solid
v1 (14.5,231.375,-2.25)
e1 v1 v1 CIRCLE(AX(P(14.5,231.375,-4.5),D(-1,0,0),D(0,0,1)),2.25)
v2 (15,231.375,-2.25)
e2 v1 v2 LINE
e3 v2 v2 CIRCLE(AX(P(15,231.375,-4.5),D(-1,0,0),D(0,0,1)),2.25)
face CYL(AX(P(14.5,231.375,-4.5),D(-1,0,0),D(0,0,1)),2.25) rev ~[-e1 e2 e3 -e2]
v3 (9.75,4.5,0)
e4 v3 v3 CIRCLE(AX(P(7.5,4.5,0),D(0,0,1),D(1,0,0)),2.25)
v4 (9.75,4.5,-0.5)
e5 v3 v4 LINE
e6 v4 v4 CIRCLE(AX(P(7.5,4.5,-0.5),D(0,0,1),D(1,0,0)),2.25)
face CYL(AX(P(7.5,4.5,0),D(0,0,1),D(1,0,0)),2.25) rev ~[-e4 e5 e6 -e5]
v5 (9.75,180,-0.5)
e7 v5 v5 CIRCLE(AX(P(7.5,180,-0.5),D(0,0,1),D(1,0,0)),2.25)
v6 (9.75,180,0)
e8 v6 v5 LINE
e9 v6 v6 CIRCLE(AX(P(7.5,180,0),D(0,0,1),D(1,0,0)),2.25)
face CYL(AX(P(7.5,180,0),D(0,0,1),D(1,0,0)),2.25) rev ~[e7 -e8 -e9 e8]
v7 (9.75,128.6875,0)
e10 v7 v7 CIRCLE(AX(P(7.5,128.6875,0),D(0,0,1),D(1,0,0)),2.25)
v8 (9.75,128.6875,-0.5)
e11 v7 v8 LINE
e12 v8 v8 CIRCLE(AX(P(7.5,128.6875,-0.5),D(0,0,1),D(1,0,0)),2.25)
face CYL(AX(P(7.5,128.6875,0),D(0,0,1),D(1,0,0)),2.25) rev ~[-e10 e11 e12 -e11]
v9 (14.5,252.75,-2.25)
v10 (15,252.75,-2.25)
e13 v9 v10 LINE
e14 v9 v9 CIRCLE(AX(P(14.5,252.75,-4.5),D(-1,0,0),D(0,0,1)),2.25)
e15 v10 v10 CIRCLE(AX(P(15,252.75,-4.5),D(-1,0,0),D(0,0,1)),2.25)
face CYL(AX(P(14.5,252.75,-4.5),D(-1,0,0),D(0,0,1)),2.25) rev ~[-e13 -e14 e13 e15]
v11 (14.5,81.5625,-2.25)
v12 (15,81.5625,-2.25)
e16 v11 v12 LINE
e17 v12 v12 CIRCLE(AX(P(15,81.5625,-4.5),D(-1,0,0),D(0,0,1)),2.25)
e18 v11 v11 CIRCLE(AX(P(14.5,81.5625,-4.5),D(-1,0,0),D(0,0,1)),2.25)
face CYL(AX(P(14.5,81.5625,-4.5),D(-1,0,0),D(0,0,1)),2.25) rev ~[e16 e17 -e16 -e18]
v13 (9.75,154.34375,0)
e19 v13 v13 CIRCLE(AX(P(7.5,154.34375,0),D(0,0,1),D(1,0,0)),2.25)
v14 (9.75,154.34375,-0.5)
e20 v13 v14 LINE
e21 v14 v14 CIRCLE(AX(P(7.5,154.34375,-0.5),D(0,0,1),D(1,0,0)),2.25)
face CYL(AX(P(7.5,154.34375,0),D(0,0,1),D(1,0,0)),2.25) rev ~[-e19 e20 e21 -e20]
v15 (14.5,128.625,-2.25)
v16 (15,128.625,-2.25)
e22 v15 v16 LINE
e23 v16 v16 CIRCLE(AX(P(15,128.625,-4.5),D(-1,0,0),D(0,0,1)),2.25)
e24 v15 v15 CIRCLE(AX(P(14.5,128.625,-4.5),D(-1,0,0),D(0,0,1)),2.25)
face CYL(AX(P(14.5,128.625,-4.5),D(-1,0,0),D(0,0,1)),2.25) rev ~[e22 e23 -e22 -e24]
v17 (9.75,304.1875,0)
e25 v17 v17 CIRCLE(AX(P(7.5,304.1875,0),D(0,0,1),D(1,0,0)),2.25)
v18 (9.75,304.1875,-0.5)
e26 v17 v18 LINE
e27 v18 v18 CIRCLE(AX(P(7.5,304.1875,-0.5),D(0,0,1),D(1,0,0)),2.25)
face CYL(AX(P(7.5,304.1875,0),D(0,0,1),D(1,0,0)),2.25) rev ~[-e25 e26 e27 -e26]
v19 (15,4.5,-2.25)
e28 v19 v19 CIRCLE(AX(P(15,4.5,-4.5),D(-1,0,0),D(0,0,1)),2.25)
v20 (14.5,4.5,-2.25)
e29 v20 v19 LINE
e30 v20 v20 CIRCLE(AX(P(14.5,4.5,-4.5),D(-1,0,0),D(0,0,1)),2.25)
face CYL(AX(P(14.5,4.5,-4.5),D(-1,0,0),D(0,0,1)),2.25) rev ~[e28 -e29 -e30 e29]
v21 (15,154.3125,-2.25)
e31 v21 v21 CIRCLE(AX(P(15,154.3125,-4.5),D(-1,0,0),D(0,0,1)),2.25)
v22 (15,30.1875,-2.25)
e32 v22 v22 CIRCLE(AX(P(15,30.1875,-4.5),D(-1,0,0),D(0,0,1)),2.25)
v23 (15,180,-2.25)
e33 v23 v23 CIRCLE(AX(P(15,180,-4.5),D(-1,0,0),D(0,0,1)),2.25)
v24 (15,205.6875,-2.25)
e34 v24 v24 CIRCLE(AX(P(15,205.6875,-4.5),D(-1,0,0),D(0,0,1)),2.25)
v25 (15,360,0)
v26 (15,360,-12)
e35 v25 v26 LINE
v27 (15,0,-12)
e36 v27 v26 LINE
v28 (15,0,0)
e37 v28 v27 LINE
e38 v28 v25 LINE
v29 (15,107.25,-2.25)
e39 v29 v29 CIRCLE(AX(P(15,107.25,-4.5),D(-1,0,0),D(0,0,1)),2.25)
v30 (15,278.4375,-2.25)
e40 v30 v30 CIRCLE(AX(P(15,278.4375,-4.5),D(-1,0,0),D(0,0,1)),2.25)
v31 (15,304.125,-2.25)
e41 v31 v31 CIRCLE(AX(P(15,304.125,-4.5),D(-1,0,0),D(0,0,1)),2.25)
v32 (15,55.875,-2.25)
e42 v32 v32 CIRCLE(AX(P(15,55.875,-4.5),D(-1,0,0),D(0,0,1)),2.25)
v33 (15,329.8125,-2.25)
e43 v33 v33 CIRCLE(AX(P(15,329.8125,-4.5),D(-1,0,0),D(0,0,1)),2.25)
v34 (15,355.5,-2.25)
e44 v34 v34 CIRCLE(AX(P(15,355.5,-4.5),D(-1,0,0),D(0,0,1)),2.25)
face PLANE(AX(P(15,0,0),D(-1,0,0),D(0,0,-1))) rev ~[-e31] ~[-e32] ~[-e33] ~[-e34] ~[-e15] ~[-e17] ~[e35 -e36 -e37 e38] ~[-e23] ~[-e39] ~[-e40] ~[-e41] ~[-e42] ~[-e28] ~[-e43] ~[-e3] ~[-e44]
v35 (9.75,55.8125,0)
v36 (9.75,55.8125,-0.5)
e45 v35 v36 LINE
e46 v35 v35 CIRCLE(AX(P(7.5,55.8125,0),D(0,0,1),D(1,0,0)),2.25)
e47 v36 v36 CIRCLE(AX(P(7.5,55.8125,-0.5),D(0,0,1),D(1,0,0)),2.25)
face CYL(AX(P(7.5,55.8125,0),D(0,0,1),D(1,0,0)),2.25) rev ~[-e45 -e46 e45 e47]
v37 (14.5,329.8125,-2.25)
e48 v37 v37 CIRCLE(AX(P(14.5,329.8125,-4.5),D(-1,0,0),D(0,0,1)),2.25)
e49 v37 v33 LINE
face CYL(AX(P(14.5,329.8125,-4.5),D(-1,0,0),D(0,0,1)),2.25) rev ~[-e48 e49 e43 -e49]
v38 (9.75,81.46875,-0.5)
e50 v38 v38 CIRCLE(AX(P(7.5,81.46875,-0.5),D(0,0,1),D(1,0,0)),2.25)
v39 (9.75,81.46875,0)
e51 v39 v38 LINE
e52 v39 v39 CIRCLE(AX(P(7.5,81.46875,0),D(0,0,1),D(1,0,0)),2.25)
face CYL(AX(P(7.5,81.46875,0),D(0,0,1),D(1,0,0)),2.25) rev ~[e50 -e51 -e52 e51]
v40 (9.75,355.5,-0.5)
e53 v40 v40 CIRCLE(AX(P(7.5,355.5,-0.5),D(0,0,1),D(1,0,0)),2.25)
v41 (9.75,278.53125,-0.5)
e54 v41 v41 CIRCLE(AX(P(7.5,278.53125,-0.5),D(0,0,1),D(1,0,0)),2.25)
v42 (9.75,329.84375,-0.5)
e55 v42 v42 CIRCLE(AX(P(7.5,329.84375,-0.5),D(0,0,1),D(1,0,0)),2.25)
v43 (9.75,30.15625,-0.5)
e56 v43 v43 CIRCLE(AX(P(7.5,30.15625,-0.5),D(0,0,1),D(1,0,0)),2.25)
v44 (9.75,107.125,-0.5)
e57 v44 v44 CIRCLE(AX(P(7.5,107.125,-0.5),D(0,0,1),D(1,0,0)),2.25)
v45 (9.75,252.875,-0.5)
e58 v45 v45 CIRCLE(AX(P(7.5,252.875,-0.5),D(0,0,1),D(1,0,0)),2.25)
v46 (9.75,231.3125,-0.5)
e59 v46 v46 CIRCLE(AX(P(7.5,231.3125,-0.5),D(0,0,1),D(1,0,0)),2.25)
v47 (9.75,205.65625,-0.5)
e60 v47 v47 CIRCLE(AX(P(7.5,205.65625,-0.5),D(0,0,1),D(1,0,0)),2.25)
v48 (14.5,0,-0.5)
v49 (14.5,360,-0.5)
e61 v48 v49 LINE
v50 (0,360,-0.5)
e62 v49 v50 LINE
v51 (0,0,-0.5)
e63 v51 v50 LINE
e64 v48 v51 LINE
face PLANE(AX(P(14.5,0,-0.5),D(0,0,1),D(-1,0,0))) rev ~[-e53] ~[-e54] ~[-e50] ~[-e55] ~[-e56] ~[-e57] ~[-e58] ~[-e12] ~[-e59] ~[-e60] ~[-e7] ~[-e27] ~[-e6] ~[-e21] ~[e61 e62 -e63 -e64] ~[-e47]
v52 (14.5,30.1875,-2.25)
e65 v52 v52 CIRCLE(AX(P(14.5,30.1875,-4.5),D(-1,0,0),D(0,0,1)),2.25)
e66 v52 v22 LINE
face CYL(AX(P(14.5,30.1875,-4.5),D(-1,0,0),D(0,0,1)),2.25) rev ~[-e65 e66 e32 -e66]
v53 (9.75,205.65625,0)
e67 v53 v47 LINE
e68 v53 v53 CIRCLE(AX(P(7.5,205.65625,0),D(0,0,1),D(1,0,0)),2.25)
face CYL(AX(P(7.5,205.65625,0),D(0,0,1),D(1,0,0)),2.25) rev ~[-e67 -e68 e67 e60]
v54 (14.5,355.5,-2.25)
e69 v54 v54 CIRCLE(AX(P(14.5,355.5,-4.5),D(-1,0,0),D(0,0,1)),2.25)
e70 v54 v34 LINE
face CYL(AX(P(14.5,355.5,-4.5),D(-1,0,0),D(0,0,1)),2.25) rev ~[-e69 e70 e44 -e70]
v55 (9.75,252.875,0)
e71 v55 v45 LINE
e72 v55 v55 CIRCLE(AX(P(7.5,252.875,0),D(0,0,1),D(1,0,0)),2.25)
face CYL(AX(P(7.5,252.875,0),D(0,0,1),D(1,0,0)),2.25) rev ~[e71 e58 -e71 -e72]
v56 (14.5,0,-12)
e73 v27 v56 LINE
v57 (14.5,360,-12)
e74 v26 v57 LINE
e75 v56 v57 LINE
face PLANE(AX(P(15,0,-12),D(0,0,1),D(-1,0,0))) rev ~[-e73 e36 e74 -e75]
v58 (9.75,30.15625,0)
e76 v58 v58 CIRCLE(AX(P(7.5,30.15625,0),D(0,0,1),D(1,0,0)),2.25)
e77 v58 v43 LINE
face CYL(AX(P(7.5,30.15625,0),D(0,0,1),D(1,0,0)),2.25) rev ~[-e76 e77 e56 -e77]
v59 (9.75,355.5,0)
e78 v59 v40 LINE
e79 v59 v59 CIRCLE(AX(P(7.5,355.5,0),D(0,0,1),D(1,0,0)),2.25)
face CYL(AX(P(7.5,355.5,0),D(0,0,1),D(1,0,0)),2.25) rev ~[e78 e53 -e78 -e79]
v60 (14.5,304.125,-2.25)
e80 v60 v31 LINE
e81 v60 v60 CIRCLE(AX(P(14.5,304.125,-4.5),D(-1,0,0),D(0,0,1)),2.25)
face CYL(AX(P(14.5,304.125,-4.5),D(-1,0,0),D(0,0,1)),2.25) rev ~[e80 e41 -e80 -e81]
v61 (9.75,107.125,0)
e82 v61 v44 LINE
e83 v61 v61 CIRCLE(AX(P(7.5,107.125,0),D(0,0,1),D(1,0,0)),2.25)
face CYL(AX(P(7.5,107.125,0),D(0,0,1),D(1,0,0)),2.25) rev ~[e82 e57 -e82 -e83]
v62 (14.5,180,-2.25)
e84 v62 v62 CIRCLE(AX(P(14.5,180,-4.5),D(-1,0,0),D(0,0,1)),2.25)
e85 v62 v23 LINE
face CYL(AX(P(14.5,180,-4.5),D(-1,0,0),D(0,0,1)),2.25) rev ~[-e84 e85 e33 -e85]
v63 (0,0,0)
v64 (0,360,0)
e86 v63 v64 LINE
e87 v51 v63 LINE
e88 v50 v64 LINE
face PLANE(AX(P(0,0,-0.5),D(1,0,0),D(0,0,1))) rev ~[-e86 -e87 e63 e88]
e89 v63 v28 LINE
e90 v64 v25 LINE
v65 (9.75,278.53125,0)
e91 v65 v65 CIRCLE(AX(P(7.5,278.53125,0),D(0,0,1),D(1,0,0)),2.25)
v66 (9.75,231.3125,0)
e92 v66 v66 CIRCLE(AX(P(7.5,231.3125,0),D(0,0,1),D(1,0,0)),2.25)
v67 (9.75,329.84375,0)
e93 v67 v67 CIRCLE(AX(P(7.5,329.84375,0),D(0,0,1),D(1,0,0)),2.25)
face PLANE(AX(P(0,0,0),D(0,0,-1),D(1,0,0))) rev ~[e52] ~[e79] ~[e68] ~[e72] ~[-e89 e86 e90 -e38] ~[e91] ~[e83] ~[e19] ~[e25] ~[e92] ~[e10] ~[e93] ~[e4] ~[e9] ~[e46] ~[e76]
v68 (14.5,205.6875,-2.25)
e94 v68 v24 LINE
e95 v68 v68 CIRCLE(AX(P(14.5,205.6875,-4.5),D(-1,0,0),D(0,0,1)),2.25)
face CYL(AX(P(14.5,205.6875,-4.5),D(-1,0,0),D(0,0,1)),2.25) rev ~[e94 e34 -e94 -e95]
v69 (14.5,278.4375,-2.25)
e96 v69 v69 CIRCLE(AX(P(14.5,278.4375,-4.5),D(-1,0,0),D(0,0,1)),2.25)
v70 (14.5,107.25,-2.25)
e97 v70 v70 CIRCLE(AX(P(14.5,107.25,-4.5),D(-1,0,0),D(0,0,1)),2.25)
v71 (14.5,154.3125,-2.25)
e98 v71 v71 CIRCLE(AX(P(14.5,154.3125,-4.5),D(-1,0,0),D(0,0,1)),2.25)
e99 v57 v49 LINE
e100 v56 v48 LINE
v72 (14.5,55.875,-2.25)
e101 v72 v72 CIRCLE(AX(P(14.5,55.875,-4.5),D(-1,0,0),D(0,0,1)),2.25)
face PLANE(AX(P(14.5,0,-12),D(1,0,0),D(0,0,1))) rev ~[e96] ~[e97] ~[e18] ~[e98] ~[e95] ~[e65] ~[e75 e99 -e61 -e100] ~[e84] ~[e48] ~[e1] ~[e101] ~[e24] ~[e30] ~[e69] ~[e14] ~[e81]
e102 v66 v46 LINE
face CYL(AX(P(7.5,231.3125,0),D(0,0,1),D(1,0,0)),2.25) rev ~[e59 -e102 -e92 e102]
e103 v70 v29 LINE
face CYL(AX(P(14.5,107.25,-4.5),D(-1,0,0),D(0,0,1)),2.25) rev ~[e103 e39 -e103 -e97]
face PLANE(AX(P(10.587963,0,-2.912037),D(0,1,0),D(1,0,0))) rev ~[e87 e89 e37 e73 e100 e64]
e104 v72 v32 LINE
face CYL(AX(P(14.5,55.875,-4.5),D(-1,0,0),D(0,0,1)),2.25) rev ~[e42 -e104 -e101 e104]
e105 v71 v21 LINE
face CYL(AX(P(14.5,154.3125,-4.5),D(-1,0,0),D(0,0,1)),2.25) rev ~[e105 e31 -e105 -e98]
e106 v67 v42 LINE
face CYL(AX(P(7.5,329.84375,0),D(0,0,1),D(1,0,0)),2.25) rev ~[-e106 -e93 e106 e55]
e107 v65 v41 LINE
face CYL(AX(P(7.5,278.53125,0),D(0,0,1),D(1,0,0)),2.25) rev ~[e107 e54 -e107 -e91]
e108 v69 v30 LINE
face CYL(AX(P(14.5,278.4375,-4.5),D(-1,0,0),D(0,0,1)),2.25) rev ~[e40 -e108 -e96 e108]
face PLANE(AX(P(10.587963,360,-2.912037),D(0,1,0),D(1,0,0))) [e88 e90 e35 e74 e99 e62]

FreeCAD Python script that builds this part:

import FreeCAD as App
import Part
import Sketcher
from FreeCAD import Vector


def add_polygon(sketch, points):
    """Adds a closed chain of lines whose ends are joined by coincident constraints."""
    first, n = sketch.GeometryCount, len(points)
    for a, b in zip(points, points[1:] + points[:1]):
        sketch.addGeometry(Part.LineSegment(App.Vector(*a, 0), App.Vector(*b, 0)), False)
    for i in range(n):
        sketch.addConstraint(Sketcher.Constraint("Coincident", first + i, 2, first + (i + 1) % n, 1))

doc = App.newDocument("Part")
body = doc.addObject("PartDesign::Body", "Body")

sketch1 = doc.addObject("Sketcher::SketchObject", "Sketch")
body.addObject(sketch1)
sketch1.AttachmentSupport = (doc.XZ_Plane, [""])
sketch1.MapMode = "FlatFace"
add_polygon(sketch1, [(0, 0), (15, 0), (15, -12), (14.5, -12), (14.5, -0.5), (0, -0.5)])
sketch1.addConstraint([
    Sketcher.Constraint("Horizontal", 0),
    Sketcher.Constraint("Vertical", 1),
    Sketcher.Constraint("Horizontal", 2),
    Sketcher.Constraint("Vertical", 3),
    Sketcher.Constraint("Horizontal", 4),
    Sketcher.Constraint("Vertical", 5),
    Sketcher.Constraint("Coincident", 5, 2, -1, 1),
    Sketcher.Constraint("Equal", 2, 5),
    Sketcher.Constraint("DistanceX", 0, 1, 0, 2, 15.0),
    Sketcher.Constraint("DistanceY", 1, 2, 1, 1, 12.0),
    Sketcher.Constraint("DistanceX", 2, 2, 2, 1, 0.5),
])
pad1 = doc.addObject("PartDesign::Pad", "Pad")
body.addObject(pad1)
pad1.Profile = sketch1
pad1.Length = 360
pad1.Reversed = True

sketch2 = doc.addObject("Sketcher::SketchObject", "Sketch001")
body.addObject(sketch2)
sketch2.AttachmentSupport = (doc.YZ_Plane, [""])
sketch2.MapMode = "FlatFace"
sketch2.AttachmentOffset = App.Placement(Vector(0, 0, 14.5), App.Rotation())
sketch2.addGeometry(Part.Circle(Vector(355.5, -4.5, 0), Vector(0, 0, 1), 2.2), False)
sketch2.addConstraint([
    Sketcher.Constraint("Diameter", 0, 4.5),
    Sketcher.Constraint("DistanceX", -1, 1, 0, 3, 355.5),
    Sketcher.Constraint("DistanceY", 0, 3, -1, 1, 4.5),
])
pocket1 = doc.addObject("PartDesign::Pocket", "Pocket")
body.addObject(pocket1)
pocket1.Profile = sketch2
pocket1.Type = "UpToFirst"
pocket1.Reversed = True

sketch3 = doc.addObject("Sketcher::SketchObject", "Sketch002")
body.addObject(sketch3)
sketch3.AttachmentSupport = (doc.YZ_Plane, [""])
sketch3.MapMode = "FlatFace"
sketch3.AttachmentOffset = App.Placement(Vector(0, 0, 14.5), App.Rotation())
sketch3.addGeometry(Part.Circle(Vector(329.8, -4.5, 0), Vector(0, 0, 1), 2.2), False)
sketch3.addConstraint([
    Sketcher.Constraint("Diameter", 0, 4.5),
    Sketcher.Constraint("DistanceY", 0, 3, -1, 1, 4.5),
    Sketcher.Constraint("DistanceX", -1, 1, 0, 3, 329.8125),
])
pocket2 = doc.addObject("PartDesign::Pocket", "Pocket001")
body.addObject(pocket2)
pocket2.Profile = sketch3
pocket2.Type = "UpToFirst"
pocket2.Reversed = True

sketch4 = doc.addObject("Sketcher::SketchObject", "Sketch003")
body.addObject(sketch4)
sketch4.AttachmentSupport = (doc.YZ_Plane, [""])
sketch4.MapMode = "FlatFace"
sketch4.AttachmentOffset = App.Placement(Vector(0, 0, 14.5), App.Rotation())
sketch4.addGeometry(Part.Circle(Vector(304.1, -4.5, 0), Vector(0, 0, 1), 2.2), False)
sketch4.addConstraint([
    Sketcher.Constraint("Diameter", 0, 4.5),
    Sketcher.Constraint("DistanceY", 0, 3, -1, 1, 4.5),
    Sketcher.Constraint("DistanceX", -1, 1, 0, 3, 304.125),
])
pocket3 = doc.addObject("PartDesign::Pocket", "Pocket002")
body.addObject(pocket3)
pocket3.Profile = sketch4
pocket3.Type = "UpToFirst"
pocket3.Reversed = True

sketch5 = doc.addObject("Sketcher::SketchObject", "Sketch004")
body.addObject(sketch5)
sketch5.AttachmentSupport = (doc.YZ_Plane, [""])
sketch5.MapMode = "FlatFace"
sketch5.AttachmentOffset = App.Placement(Vector(0, 0, 14.5), App.Rotation())
sketch5.addGeometry(Part.Circle(Vector(278.4, -4.5, 0), Vector(0, 0, 1), 2.2), False)
sketch5.addConstraint([
    Sketcher.Constraint("Diameter", 0, 4.5),
    Sketcher.Constraint("DistanceY", 0, 3, -1, 1, 4.5),
    Sketcher.Constraint("DistanceX", -1, 1, 0, 3, 278.4375),
])
pocket4 = doc.addObject("PartDesign::Pocket", "Pocket003")
body.addObject(pocket4)
pocket4.Profile = sketch5
pocket4.Type = "UpToFirst"
pocket4.Reversed = True

sketch6 = doc.addObject("Sketcher::SketchObject", "Sketch005")
body.addObject(sketch6)
sketch6.AttachmentSupport = (doc.YZ_Plane, [""])
sketch6.MapMode = "FlatFace"
sketch6.AttachmentOffset = App.Placement(Vector(0, 0, 14.5), App.Rotation())
sketch6.addGeometry(Part.Circle(Vector(252.8, -4.5, 0), Vector(0, 0, 1), 2.2), False)
sketch6.addConstraint([
    Sketcher.Constraint("Diameter", 0, 4.5),
    Sketcher.Constraint("DistanceY", 0, 3, -1, 1, 4.5),
    Sketcher.Constraint("DistanceX", -1, 1, 0, 3, 252.75),
])
pocket5 = doc.addObject("PartDesign::Pocket", "Pocket004")
body.addObject(pocket5)
pocket5.Profile = sketch6
pocket5.Type = "UpToFirst"
pocket5.Reversed = True

sketch7 = doc.addObject("Sketcher::SketchObject", "Sketch006")
body.addObject(sketch7)
sketch7.AttachmentSupport = (doc.YZ_Plane, [""])
sketch7.MapMode = "FlatFace"
sketch7.AttachmentOffset = App.Placement(Vector(0, 0, 14.5), App.Rotation())
sketch7.addGeometry(Part.Circle(Vector(231.4, -4.5, 0), Vector(0, 0, 1), 2.2), False)
sketch7.addConstraint([
    Sketcher.Constraint("Diameter", 0, 4.5),
    Sketcher.Constraint("DistanceY", 0, 3, -1, 1, 4.5),
    Sketcher.Constraint("DistanceX", -1, 1, 0, 3, 231.375),
])
pocket6 = doc.addObject("PartDesign::Pocket", "Pocket005")
body.addObject(pocket6)
pocket6.Profile = sketch7
pocket6.Type = "UpToFirst"
pocket6.Reversed = True

sketch8 = doc.addObject("Sketcher::SketchObject", "Sketch007")
body.addObject(sketch8)
sketch8.AttachmentSupport = (doc.YZ_Plane, [""])
sketch8.MapMode = "FlatFace"
sketch8.AttachmentOffset = App.Placement(Vector(0, 0, 14.5), App.Rotation())
sketch8.addGeometry(Part.Circle(Vector(205.7, -4.5, 0), Vector(0, 0, 1), 2.2), False)
sketch8.addConstraint([
    Sketcher.Constraint("Diameter", 0, 4.5),
    Sketcher.Constraint("DistanceY", 0, 3, -1, 1, 4.5),
    Sketcher.Constraint("DistanceX", -1, 1, 0, 3, 205.6875),
])
pocket7 = doc.addObject("PartDesign::Pocket", "Pocket006")
body.addObject(pocket7)
pocket7.Profile = sketch8
pocket7.Type = "UpToFirst"
pocket7.Reversed = True

sketch9 = doc.addObject("Sketcher::SketchObject", "Sketch008")
body.addObject(sketch9)
sketch9.AttachmentSupport = (doc.YZ_Plane, [""])
sketch9.MapMode = "FlatFace"
sketch9.AttachmentOffset = App.Placement(Vector(0, 0, 14.5), App.Rotation())
sketch9.addGeometry(Part.Circle(Vector(180, -4.5, 0), Vector(0, 0, 1), 2.2), False)
sketch9.addConstraint([
    Sketcher.Constraint("Diameter", 0, 4.5),
    Sketcher.Constraint("DistanceX", -1, 1, 0, 3, 180.0),
    Sketcher.Constraint("DistanceY", 0, 3, -1, 1, 4.5),
])
pocket8 = doc.addObject("PartDesign::Pocket", "Pocket007")
body.addObject(pocket8)
pocket8.Profile = sketch9
pocket8.Type = "UpToFirst"
pocket8.Reversed = True

sketch10 = doc.addObject("Sketcher::SketchObject", "Sketch009")
body.addObject(sketch10)
sketch10.AttachmentSupport = (doc.YZ_Plane, [""])
sketch10.MapMode = "FlatFace"
sketch10.AttachmentOffset = App.Placement(Vector(0, 0, 14.5), App.Rotation())
sketch10.addGeometry(Part.Circle(Vector(154.3, -4.5, 0), Vector(0, 0, 1), 2.2), False)
sketch10.addConstraint([
    Sketcher.Constraint("Diameter", 0, 4.5),
    Sketcher.Constraint("DistanceY", 0, 3, -1, 1, 4.5),
    Sketcher.Constraint("DistanceX", -1, 1, 0, 3, 154.3125),
])
pocket9 = doc.addObject("PartDesign::Pocket", "Pocket008")
body.addObject(pocket9)
pocket9.Profile = sketch10
pocket9.Type = "UpToFirst"
pocket9.Reversed = True

sketch11 = doc.addObject("Sketcher::SketchObject", "Sketch010")
body.addObject(sketch11)
sketch11.AttachmentSupport = (doc.YZ_Plane, [""])
sketch11.MapMode = "FlatFace"
sketch11.AttachmentOffset = App.Placement(Vector(0, 0, 14.5), App.Rotation())
sketch11.addGeometry(Part.Circle(Vector(128.6, -4.5, 0), Vector(0, 0, 1), 2.2), False)
sketch11.addConstraint([
    Sketcher.Constraint("Diameter", 0, 4.5),
    Sketcher.Constraint("DistanceY", 0, 3, -1, 1, 4.5),
    Sketcher.Constraint("DistanceX", -1, 1, 0, 3, 128.625),
])
pocket10 = doc.addObject("PartDesign::Pocket", "Pocket009")
body.addObject(pocket10)
pocket10.Profile = sketch11
pocket10.Type = "UpToFirst"
pocket10.Reversed = True

sketch12 = doc.addObject("Sketcher::SketchObject", "Sketch011")
body.addObject(sketch12)
sketch12.AttachmentSupport = (doc.YZ_Plane, [""])
sketch12.MapMode = "FlatFace"
sketch12.AttachmentOffset = App.Placement(Vector(0, 0, 14.5), App.Rotation())
sketch12.addGeometry(Part.Circle(Vector(107.2, -4.5, 0), Vector(0, 0, 1), 2.2), False)
sketch12.addConstraint([
    Sketcher.Constraint("Diameter", 0, 4.5),
    Sketcher.Constraint("DistanceY", 0, 3, -1, 1, 4.5),
    Sketcher.Constraint("DistanceX", -1, 1, 0, 3, 107.25),
])
pocket11 = doc.addObject("PartDesign::Pocket", "Pocket010")
body.addObject(pocket11)
pocket11.Profile = sketch12
pocket11.Type = "UpToFirst"
pocket11.Reversed = True

sketch13 = doc.addObject("Sketcher::SketchObject", "Sketch012")
body.addObject(sketch13)
sketch13.AttachmentSupport = (doc.YZ_Plane, [""])
sketch13.MapMode = "FlatFace"
sketch13.AttachmentOffset = App.Placement(Vector(0, 0, 14.5), App.Rotation())
sketch13.addGeometry(Part.Circle(Vector(81.6, -4.5, 0), Vector(0, 0, 1), 2.2), False)
sketch13.addConstraint([
    Sketcher.Constraint("Diameter", 0, 4.5),
    Sketcher.Constraint("DistanceY", 0, 3, -1, 1, 4.5),
    Sketcher.Constraint("DistanceX", -1, 1, 0, 3, 81.5625),
])
pocket12 = doc.addObject("PartDesign::Pocket", "Pocket011")
body.addObject(pocket12)
pocket12.Profile = sketch13
pocket12.Type = "UpToFirst"
pocket12.Reversed = True

sketch14 = doc.addObject("Sketcher::SketchObject", "Sketch013")
body.addObject(sketch14)
sketch14.AttachmentSupport = (doc.YZ_Plane, [""])
sketch14.MapMode = "FlatFace"
sketch14.AttachmentOffset = App.Placement(Vector(0, 0, 14.5), App.Rotation())
sketch14.addGeometry(Part.Circle(Vector(55.9, -4.5, 0), Vector(0, 0, 1), 2.2), False)
sketch14.addConstraint([
    Sketcher.Constraint("Diameter", 0, 4.5),
    Sketcher.Constraint("DistanceY", 0, 3, -1, 1, 4.5),
    Sketcher.Constraint("DistanceX", -1, 1, 0, 3, 55.875),
])
pocket13 = doc.addObject("PartDesign::Pocket", "Pocket012")
body.addObject(pocket13)
pocket13.Profile = sketch14
pocket13.Type = "UpToFirst"
pocket13.Reversed = True

sketch15 = doc.addObject("Sketcher::SketchObject", "Sketch014")
body.addObject(sketch15)
sketch15.AttachmentSupport = (doc.YZ_Plane, [""])
sketch15.MapMode = "FlatFace"
sketch15.AttachmentOffset = App.Placement(Vector(0, 0, 14.5), App.Rotation())
sketch15.addGeometry(Part.Circle(Vector(30.2, -4.5, 0), Vector(0, 0, 1), 2.2), False)
sketch15.addConstraint([
    Sketcher.Constraint("Diameter", 0, 4.5),
    Sketcher.Constraint("DistanceY", 0, 3, -1, 1, 4.5),
    Sketcher.Constraint("DistanceX", -1, 1, 0, 3, 30.1875),
])
pocket14 = doc.addObject("PartDesign::Pocket", "Pocket013")
body.addObject(pocket14)
pocket14.Profile = sketch15
pocket14.Type = "UpToFirst"
pocket14.Reversed = True

sketch16 = doc.addObject("Sketcher::SketchObject", "Sketch015")
body.addObject(sketch16)
sketch16.AttachmentSupport = (doc.YZ_Plane, [""])
sketch16.MapMode = "FlatFace"
sketch16.AttachmentOffset = App.Placement(Vector(0, 0, 14.5), App.Rotation())
sketch16.addGeometry(Part.Circle(Vector(4.5, -4.5, 0), Vector(0, 0, 1), 2.2), False)
sketch16.addConstraint([
    Sketcher.Constraint("Diameter", 0, 4.5),
    Sketcher.Constraint("DistanceX", -1, 1, 0, 3, 4.5),
    Sketcher.Constraint("DistanceY", 0, 3, -1, 1, 4.5),
])
pocket15 = doc.addObject("PartDesign::Pocket", "Pocket014")
body.addObject(pocket15)
pocket15.Profile = sketch16
pocket15.Type = "UpToFirst"
pocket15.Reversed = True

sketch17 = doc.addObject("Sketcher::SketchObject", "Sketch016")
body.addObject(sketch17)
sketch17.AttachmentSupport = (doc.XY_Plane, [""])
sketch17.MapMode = "FlatFace"
sketch17.addGeometry(Part.Circle(Vector(7.5, 355.5, 0), Vector(0, 0, 1), 2.2), False)
sketch17.addConstraint([
    Sketcher.Constraint("Diameter", 0, 4.5),
    Sketcher.Constraint("DistanceX", -1, 1, 0, 3, 7.5),
    Sketcher.Constraint("DistanceY", -1, 1, 0, 3, 355.5),
])
pocket16 = doc.addObject("PartDesign::Pocket", "Pocket015")
body.addObject(pocket16)
pocket16.Profile = sketch17
pocket16.Type = "UpToFirst"

sketch18 = doc.addObject("Sketcher::SketchObject", "Sketch017")
body.addObject(sketch18)
sketch18.AttachmentSupport = (doc.XY_Plane, [""])
sketch18.MapMode = "FlatFace"
sketch18.addGeometry(Part.Circle(Vector(7.5, 329.8, 0), Vector(0, 0, 1), 2.2), False)
sketch18.addConstraint([
    Sketcher.Constraint("Diameter", 0, 4.5),
    Sketcher.Constraint("DistanceX", -1, 1, 0, 3, 7.5),
    Sketcher.Constraint("DistanceY", -1, 1, 0, 3, 329.84375),
])
pocket17 = doc.addObject("PartDesign::Pocket", "Pocket016")
body.addObject(pocket17)
pocket17.Profile = sketch18
pocket17.Type = "UpToFirst"

sketch19 = doc.addObject("Sketcher::SketchObject", "Sketch018")
body.addObject(sketch19)
sketch19.AttachmentSupport = (doc.XY_Plane, [""])
sketch19.MapMode = "FlatFace"
sketch19.addGeometry(Part.Circle(Vector(7.5, 304.2, 0), Vector(0, 0, 1), 2.2), False)
sketch19.addConstraint([
    Sketcher.Constraint("Diameter", 0, 4.5),
    Sketcher.Constraint("DistanceX", -1, 1, 0, 3, 7.5),
    Sketcher.Constraint("DistanceY", -1, 1, 0, 3, 304.1875),
])
pocket18 = doc.addObject("PartDesign::Pocket", "Pocket017")
body.addObject(pocket18)
pocket18.Profile = sketch19
pocket18.Type = "UpToFirst"

sketch20 = doc.addObject("Sketcher::SketchObject", "Sketch019")
body.addObject(sketch20)
sketch20.AttachmentSupport = (doc.XY_Plane, [""])
sketch20.MapMode = "FlatFace"
sketch20.addGeometry(Part.Circle(Vector(7.5, 278.5, 0), Vector(0, 0, 1), 2.2), False)
sketch20.addConstraint([
    Sketcher.Constraint("Diameter", 0, 4.5),
    Sketcher.Constraint("DistanceX", -1, 1, 0, 3, 7.5),
    Sketcher.Constraint("DistanceY", -1, 1, 0, 3, 278.53125),
])
pocket19 = doc.addObject("PartDesign::Pocket", "Pocket018")
body.addObject(pocket19)
pocket19.Profile = sketch20
pocket19.Type = "UpToFirst"

sketch21 = doc.addObject("Sketcher::SketchObject", "Sketch020")
body.addObject(sketch21)
sketch21.AttachmentSupport = (doc.XY_Plane, [""])
sketch21.MapMode = "FlatFace"
sketch21.addGeometry(Part.Circle(Vector(7.5, 252.9, 0), Vector(0, 0, 1), 2.2), False)
sketch21.addConstraint([
    Sketcher.Constraint("Diameter", 0, 4.5),
    Sketcher.Constraint("DistanceX", -1, 1, 0, 3, 7.5),
    Sketcher.Constraint("DistanceY", -1, 1, 0, 3, 252.875),
])
pocket20 = doc.addObject("PartDesign::Pocket", "Pocket019")
body.addObject(pocket20)
pocket20.Profile = sketch21
pocket20.Type = "UpToFirst"

sketch22 = doc.addObject("Sketcher::SketchObject", "Sketch021")
body.addObject(sketch22)
sketch22.AttachmentSupport = (doc.XY_Plane, [""])
sketch22.MapMode = "FlatFace"
sketch22.addGeometry(Part.Circle(Vector(7.5, 231.3, 0), Vector(0, 0, 1), 2.2), False)
sketch22.addConstraint([
    Sketcher.Constraint("Diameter", 0, 4.5),
    Sketcher.Constraint("DistanceX", -1, 1, 0, 3, 7.5),
    Sketcher.Constraint("DistanceY", -1, 1, 0, 3, 231.3125),
])
pocket21 = doc.addObject("PartDesign::Pocket", "Pocket020")
body.addObject(pocket21)
pocket21.Profile = sketch22
pocket21.Type = "UpToFirst"

sketch23 = doc.addObject("Sketcher::SketchObject", "Sketch022")
body.addObject(sketch23)
sketch23.AttachmentSupport = (doc.XY_Plane, [""])
sketch23.MapMode = "FlatFace"
sketch23.addGeometry(Part.Circle(Vector(7.5, 205.7, 0), Vector(0, 0, 1), 2.2), False)
sketch23.addConstraint([
    Sketcher.Constraint("Diameter", 0, 4.5),
    Sketcher.Constraint("DistanceX", -1, 1, 0, 3, 7.5),
    Sketcher.Constraint("DistanceY", -1, 1, 0, 3, 205.65625),
])
pocket22 = doc.addObject("PartDesign::Pocket", "Pocket021")
body.addObject(pocket22)
pocket22.Profile = sketch23
pocket22.Type = "UpToFirst"

sketch24 = doc.addObject("Sketcher::SketchObject", "Sketch023")
body.addObject(sketch24)
sketch24.AttachmentSupport = (doc.XY_Plane, [""])
sketch24.MapMode = "FlatFace"
sketch24.addGeometry(Part.Circle(Vector(7.5, 180, 0), Vector(0, 0, 1), 2.2), False)
sketch24.addConstraint([
    Sketcher.Constraint("Diameter", 0, 4.5),
    Sketcher.Constraint("DistanceY", -1, 1, 0, 3, 180.0),
    Sketcher.Constraint("DistanceX", -1, 1, 0, 3, 7.5),
])
pocket23 = doc.addObject("PartDesign::Pocket", "Pocket022")
body.addObject(pocket23)
pocket23.Profile = sketch24
pocket23.Type = "UpToFirst"

sketch25 = doc.addObject("Sketcher::SketchObject", "Sketch024")
body.addObject(sketch25)
sketch25.AttachmentSupport = (doc.XY_Plane, [""])
sketch25.MapMode = "FlatFace"
sketch25.addGeometry(Part.Circle(Vector(7.5, 154.3, 0), Vector(0, 0, 1), 2.2), False)
sketch25.addConstraint([
    Sketcher.Constraint("Diameter", 0, 4.5),
    Sketcher.Constraint("DistanceX", -1, 1, 0, 3, 7.5),
    Sketcher.Constraint("DistanceY", -1, 1, 0, 3, 154.34375),
])
pocket24 = doc.addObject("PartDesign::Pocket", "Pocket023")
body.addObject(pocket24)
pocket24.Profile = sketch25
pocket24.Type = "UpToFirst"

sketch26 = doc.addObject("Sketcher::SketchObject", "Sketch025")
body.addObject(sketch26)
sketch26.AttachmentSupport = (doc.XY_Plane, [""])
sketch26.MapMode = "FlatFace"
sketch26.addGeometry(Part.Circle(Vector(7.5, 128.7, 0), Vector(0, 0, 1), 2.2), False)
sketch26.addConstraint([
    Sketcher.Constraint("Diameter", 0, 4.5),
    Sketcher.Constraint("DistanceX", -1, 1, 0, 3, 7.5),
    Sketcher.Constraint("DistanceY", -1, 1, 0, 3, 128.6875),
])
pocket25 = doc.addObject("PartDesign::Pocket", "Pocket024")
body.addObject(pocket25)
pocket25.Profile = sketch26
pocket25.Type = "UpToFirst"

sketch27 = doc.addObject("Sketcher::SketchObject", "Sketch026")
body.addObject(sketch27)
sketch27.AttachmentSupport = (doc.XY_Plane, [""])
sketch27.MapMode = "FlatFace"
sketch27.addGeometry(Part.Circle(Vector(7.5, 107.1, 0), Vector(0, 0, 1), 2.2), False)
sketch27.addConstraint([
    Sketcher.Constraint("Diameter", 0, 4.5),
    Sketcher.Constraint("DistanceX", -1, 1, 0, 3, 7.5),
    Sketcher.Constraint("DistanceY", -1, 1, 0, 3, 107.125),
])
pocket26 = doc.addObject("PartDesign::Pocket", "Pocket025")
body.addObject(pocket26)
pocket26.Profile = sketch27
pocket26.Type = "UpToFirst"

sketch28 = doc.addObject("Sketcher::SketchObject", "Sketch027")
body.addObject(sketch28)
sketch28.AttachmentSupport = (doc.XY_Plane, [""])
sketch28.MapMode = "FlatFace"
sketch28.addGeometry(Part.Circle(Vector(7.5, 81.5, 0), Vector(0, 0, 1), 2.2), False)
sketch28.addConstraint([
    Sketcher.Constraint("Diameter", 0, 4.5),
    Sketcher.Constraint("DistanceX", -1, 1, 0, 3, 7.5),
    Sketcher.Constraint("DistanceY", -1, 1, 0, 3, 81.46875),
])
pocket27 = doc.addObject("PartDesign::Pocket", "Pocket026")
body.addObject(pocket27)
pocket27.Profile = sketch28
pocket27.Type = "UpToFirst"

sketch29 = doc.addObject("Sketcher::SketchObject", "Sketch028")
body.addObject(sketch29)
sketch29.AttachmentSupport = (doc.XY_Plane, [""])
sketch29.MapMode = "FlatFace"
sketch29.addGeometry(Part.Circle(Vector(7.5, 55.8, 0), Vector(0, 0, 1), 2.2), False)
sketch29.addConstraint([
    Sketcher.Constraint("Diameter", 0, 4.5),
    Sketcher.Constraint("DistanceX", -1, 1, 0, 3, 7.5),
    Sketcher.Constraint("DistanceY", -1, 1, 0, 3, 55.8125),
])
pocket28 = doc.addObject("PartDesign::Pocket", "Pocket027")
body.addObject(pocket28)
pocket28.Profile = sketch29
pocket28.Type = "UpToFirst"

sketch30 = doc.addObject("Sketcher::SketchObject", "Sketch029")
body.addObject(sketch30)
sketch30.AttachmentSupport = (doc.XY_Plane, [""])
sketch30.MapMode = "FlatFace"
sketch30.addGeometry(Part.Circle(Vector(7.5, 30.2, 0), Vector(0, 0, 1), 2.2), False)
sketch30.addConstraint([
    Sketcher.Constraint("Diameter", 0, 4.5),
    Sketcher.Constraint("DistanceX", -1, 1, 0, 3, 7.5),
    Sketcher.Constraint("DistanceY", -1, 1, 0, 3, 30.15625),
])
pocket29 = doc.addObject("PartDesign::Pocket", "Pocket028")
body.addObject(pocket29)
pocket29.Profile = sketch30
pocket29.Type = "UpToFirst"

sketch31 = doc.addObject("Sketcher::SketchObject", "Sketch030")
body.addObject(sketch31)
sketch31.AttachmentSupport = (doc.XY_Plane, [""])
sketch31.MapMode = "FlatFace"
sketch31.addGeometry(Part.Circle(Vector(7.5, 4.5, 0), Vector(0, 0, 1), 2.2), False)
sketch31.addConstraint([
    Sketcher.Constraint("Diameter", 0, 4.5),
    Sketcher.Constraint("DistanceX", -1, 1, 0, 3, 7.5),
    Sketcher.Constraint("DistanceY", -1, 1, 0, 3, 4.5),
])
pocket30 = doc.addObject("PartDesign::Pocket", "Pocket029")
body.addObject(pocket30)
pocket30.Profile = sketch31
pocket30.Type = "UpToFirst"

doc.recompute()
